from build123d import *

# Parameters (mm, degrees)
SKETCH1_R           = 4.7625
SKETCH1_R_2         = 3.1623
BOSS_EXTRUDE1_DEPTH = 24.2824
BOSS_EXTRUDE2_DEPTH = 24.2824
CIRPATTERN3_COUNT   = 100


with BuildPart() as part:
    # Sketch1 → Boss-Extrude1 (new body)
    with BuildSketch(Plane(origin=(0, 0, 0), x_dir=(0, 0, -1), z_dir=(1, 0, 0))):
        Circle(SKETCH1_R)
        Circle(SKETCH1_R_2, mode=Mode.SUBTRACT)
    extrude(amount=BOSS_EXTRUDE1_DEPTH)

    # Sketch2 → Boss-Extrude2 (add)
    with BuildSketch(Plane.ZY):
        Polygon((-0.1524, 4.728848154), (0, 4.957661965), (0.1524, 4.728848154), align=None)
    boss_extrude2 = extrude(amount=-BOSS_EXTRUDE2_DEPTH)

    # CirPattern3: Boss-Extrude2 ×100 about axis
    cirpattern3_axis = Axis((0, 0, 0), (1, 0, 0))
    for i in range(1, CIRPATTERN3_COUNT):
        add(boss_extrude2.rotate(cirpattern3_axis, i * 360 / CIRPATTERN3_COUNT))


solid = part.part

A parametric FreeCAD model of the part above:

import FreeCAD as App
import Part
import Sketcher
Q = App.Units.Quantity

doc = App.newDocument("Part")
body = doc.addObject("PartDesign::Body", "Body")

sketch1 = body.newObject("Sketcher::SketchObject", "Sketch")
sketch1.AttachmentSupport = (doc.getObject("YZ_Plane"), [""])
sketch1.MapMode = "FlatFace"
sketch1.addGeometry(Part.Circle(App.Vector(0, 0, 0), App.Vector(0, 0, 1), 4.8), False)
sketch1.addGeometry(Part.Circle(App.Vector(0, 0, 0), App.Vector(0, 0, 1), 3.2), False)
sketch1.addConstraint(Sketcher.Constraint("Coincident", 0, 3, -1, 1))
sketch1.addConstraint(Sketcher.Constraint("Coincident", 1, 3, -1, 1))
sketch1.addConstraint(Sketcher.Constraint("Diameter", 0, Q("0.375 in")))
sketch1.addConstraint(Sketcher.Constraint("Diameter", 1, Q("0.249 in")))
pad1 = body.newObject("PartDesign::Pad", "Pad")
pad1.Profile = sketch1
pad1.Length = Q("0.956 in")

sketch2 = body.newObject("Sketcher::SketchObject", "Sketch001")
sketch2.AttachmentSupport = (doc.getObject("YZ_Plane"), [""])
sketch2.MapMode = "FlatFace"
sketch2.addGeometry(Part.LineSegment(App.Vector(4.96, 0, 0), App.Vector(4.73, -0.15, 0)), False)
sketch2.addGeometry(Part.LineSegment(App.Vector(4.73, -0.15, 0), App.Vector(4.73, 0.15, 0)), False)
sketch2.addGeometry(Part.LineSegment(App.Vector(4.73, 0.15, 0), App.Vector(4.96, 0, 0)), False)
sketch2.addConstraint(Sketcher.Constraint("Coincident", 0, 2, 1, 1))
sketch2.addConstraint(Sketcher.Constraint("Coincident", 1, 2, 2, 1))
sketch2.addConstraint(Sketcher.Constraint("Coincident", 2, 2, 0, 1))
sketch2.addConstraint(Sketcher.Constraint("Vertical", 1))
sketch2.addConstraint(Sketcher.Constraint("PointOnObject", 2, 2, -1))
sketch2.addConstraint(Sketcher.Constraint("Equal", 0, 2))
sketch2.addConstraint(Sketcher.Constraint("DistanceY", 1, 1, 1, 2, Q("0.012 in")))
sketch2.addConstraint(Sketcher.Constraint("Distance", 0, 0.274921))
sketch2.addConstraint(Sketcher.Constraint("DistanceX", -1, 1, 0, 2, 4.728848))
pad2 = body.newObject("PartDesign::Pad", "Pad001")
pad2.Profile = sketch2
pad2.Length = Q("0.956 in")
doc.recompute()

polarpattern = body.newObject("PartDesign::PolarPattern", "PolarPattern")
polarpattern.Originals = [pad2]
polarpattern.Axis = (doc.getObject("X_Axis"), [""])
polarpattern.Angle = 360
polarpattern.Occurrences = 100
body.Tip = polarpattern

doc.recompute()
